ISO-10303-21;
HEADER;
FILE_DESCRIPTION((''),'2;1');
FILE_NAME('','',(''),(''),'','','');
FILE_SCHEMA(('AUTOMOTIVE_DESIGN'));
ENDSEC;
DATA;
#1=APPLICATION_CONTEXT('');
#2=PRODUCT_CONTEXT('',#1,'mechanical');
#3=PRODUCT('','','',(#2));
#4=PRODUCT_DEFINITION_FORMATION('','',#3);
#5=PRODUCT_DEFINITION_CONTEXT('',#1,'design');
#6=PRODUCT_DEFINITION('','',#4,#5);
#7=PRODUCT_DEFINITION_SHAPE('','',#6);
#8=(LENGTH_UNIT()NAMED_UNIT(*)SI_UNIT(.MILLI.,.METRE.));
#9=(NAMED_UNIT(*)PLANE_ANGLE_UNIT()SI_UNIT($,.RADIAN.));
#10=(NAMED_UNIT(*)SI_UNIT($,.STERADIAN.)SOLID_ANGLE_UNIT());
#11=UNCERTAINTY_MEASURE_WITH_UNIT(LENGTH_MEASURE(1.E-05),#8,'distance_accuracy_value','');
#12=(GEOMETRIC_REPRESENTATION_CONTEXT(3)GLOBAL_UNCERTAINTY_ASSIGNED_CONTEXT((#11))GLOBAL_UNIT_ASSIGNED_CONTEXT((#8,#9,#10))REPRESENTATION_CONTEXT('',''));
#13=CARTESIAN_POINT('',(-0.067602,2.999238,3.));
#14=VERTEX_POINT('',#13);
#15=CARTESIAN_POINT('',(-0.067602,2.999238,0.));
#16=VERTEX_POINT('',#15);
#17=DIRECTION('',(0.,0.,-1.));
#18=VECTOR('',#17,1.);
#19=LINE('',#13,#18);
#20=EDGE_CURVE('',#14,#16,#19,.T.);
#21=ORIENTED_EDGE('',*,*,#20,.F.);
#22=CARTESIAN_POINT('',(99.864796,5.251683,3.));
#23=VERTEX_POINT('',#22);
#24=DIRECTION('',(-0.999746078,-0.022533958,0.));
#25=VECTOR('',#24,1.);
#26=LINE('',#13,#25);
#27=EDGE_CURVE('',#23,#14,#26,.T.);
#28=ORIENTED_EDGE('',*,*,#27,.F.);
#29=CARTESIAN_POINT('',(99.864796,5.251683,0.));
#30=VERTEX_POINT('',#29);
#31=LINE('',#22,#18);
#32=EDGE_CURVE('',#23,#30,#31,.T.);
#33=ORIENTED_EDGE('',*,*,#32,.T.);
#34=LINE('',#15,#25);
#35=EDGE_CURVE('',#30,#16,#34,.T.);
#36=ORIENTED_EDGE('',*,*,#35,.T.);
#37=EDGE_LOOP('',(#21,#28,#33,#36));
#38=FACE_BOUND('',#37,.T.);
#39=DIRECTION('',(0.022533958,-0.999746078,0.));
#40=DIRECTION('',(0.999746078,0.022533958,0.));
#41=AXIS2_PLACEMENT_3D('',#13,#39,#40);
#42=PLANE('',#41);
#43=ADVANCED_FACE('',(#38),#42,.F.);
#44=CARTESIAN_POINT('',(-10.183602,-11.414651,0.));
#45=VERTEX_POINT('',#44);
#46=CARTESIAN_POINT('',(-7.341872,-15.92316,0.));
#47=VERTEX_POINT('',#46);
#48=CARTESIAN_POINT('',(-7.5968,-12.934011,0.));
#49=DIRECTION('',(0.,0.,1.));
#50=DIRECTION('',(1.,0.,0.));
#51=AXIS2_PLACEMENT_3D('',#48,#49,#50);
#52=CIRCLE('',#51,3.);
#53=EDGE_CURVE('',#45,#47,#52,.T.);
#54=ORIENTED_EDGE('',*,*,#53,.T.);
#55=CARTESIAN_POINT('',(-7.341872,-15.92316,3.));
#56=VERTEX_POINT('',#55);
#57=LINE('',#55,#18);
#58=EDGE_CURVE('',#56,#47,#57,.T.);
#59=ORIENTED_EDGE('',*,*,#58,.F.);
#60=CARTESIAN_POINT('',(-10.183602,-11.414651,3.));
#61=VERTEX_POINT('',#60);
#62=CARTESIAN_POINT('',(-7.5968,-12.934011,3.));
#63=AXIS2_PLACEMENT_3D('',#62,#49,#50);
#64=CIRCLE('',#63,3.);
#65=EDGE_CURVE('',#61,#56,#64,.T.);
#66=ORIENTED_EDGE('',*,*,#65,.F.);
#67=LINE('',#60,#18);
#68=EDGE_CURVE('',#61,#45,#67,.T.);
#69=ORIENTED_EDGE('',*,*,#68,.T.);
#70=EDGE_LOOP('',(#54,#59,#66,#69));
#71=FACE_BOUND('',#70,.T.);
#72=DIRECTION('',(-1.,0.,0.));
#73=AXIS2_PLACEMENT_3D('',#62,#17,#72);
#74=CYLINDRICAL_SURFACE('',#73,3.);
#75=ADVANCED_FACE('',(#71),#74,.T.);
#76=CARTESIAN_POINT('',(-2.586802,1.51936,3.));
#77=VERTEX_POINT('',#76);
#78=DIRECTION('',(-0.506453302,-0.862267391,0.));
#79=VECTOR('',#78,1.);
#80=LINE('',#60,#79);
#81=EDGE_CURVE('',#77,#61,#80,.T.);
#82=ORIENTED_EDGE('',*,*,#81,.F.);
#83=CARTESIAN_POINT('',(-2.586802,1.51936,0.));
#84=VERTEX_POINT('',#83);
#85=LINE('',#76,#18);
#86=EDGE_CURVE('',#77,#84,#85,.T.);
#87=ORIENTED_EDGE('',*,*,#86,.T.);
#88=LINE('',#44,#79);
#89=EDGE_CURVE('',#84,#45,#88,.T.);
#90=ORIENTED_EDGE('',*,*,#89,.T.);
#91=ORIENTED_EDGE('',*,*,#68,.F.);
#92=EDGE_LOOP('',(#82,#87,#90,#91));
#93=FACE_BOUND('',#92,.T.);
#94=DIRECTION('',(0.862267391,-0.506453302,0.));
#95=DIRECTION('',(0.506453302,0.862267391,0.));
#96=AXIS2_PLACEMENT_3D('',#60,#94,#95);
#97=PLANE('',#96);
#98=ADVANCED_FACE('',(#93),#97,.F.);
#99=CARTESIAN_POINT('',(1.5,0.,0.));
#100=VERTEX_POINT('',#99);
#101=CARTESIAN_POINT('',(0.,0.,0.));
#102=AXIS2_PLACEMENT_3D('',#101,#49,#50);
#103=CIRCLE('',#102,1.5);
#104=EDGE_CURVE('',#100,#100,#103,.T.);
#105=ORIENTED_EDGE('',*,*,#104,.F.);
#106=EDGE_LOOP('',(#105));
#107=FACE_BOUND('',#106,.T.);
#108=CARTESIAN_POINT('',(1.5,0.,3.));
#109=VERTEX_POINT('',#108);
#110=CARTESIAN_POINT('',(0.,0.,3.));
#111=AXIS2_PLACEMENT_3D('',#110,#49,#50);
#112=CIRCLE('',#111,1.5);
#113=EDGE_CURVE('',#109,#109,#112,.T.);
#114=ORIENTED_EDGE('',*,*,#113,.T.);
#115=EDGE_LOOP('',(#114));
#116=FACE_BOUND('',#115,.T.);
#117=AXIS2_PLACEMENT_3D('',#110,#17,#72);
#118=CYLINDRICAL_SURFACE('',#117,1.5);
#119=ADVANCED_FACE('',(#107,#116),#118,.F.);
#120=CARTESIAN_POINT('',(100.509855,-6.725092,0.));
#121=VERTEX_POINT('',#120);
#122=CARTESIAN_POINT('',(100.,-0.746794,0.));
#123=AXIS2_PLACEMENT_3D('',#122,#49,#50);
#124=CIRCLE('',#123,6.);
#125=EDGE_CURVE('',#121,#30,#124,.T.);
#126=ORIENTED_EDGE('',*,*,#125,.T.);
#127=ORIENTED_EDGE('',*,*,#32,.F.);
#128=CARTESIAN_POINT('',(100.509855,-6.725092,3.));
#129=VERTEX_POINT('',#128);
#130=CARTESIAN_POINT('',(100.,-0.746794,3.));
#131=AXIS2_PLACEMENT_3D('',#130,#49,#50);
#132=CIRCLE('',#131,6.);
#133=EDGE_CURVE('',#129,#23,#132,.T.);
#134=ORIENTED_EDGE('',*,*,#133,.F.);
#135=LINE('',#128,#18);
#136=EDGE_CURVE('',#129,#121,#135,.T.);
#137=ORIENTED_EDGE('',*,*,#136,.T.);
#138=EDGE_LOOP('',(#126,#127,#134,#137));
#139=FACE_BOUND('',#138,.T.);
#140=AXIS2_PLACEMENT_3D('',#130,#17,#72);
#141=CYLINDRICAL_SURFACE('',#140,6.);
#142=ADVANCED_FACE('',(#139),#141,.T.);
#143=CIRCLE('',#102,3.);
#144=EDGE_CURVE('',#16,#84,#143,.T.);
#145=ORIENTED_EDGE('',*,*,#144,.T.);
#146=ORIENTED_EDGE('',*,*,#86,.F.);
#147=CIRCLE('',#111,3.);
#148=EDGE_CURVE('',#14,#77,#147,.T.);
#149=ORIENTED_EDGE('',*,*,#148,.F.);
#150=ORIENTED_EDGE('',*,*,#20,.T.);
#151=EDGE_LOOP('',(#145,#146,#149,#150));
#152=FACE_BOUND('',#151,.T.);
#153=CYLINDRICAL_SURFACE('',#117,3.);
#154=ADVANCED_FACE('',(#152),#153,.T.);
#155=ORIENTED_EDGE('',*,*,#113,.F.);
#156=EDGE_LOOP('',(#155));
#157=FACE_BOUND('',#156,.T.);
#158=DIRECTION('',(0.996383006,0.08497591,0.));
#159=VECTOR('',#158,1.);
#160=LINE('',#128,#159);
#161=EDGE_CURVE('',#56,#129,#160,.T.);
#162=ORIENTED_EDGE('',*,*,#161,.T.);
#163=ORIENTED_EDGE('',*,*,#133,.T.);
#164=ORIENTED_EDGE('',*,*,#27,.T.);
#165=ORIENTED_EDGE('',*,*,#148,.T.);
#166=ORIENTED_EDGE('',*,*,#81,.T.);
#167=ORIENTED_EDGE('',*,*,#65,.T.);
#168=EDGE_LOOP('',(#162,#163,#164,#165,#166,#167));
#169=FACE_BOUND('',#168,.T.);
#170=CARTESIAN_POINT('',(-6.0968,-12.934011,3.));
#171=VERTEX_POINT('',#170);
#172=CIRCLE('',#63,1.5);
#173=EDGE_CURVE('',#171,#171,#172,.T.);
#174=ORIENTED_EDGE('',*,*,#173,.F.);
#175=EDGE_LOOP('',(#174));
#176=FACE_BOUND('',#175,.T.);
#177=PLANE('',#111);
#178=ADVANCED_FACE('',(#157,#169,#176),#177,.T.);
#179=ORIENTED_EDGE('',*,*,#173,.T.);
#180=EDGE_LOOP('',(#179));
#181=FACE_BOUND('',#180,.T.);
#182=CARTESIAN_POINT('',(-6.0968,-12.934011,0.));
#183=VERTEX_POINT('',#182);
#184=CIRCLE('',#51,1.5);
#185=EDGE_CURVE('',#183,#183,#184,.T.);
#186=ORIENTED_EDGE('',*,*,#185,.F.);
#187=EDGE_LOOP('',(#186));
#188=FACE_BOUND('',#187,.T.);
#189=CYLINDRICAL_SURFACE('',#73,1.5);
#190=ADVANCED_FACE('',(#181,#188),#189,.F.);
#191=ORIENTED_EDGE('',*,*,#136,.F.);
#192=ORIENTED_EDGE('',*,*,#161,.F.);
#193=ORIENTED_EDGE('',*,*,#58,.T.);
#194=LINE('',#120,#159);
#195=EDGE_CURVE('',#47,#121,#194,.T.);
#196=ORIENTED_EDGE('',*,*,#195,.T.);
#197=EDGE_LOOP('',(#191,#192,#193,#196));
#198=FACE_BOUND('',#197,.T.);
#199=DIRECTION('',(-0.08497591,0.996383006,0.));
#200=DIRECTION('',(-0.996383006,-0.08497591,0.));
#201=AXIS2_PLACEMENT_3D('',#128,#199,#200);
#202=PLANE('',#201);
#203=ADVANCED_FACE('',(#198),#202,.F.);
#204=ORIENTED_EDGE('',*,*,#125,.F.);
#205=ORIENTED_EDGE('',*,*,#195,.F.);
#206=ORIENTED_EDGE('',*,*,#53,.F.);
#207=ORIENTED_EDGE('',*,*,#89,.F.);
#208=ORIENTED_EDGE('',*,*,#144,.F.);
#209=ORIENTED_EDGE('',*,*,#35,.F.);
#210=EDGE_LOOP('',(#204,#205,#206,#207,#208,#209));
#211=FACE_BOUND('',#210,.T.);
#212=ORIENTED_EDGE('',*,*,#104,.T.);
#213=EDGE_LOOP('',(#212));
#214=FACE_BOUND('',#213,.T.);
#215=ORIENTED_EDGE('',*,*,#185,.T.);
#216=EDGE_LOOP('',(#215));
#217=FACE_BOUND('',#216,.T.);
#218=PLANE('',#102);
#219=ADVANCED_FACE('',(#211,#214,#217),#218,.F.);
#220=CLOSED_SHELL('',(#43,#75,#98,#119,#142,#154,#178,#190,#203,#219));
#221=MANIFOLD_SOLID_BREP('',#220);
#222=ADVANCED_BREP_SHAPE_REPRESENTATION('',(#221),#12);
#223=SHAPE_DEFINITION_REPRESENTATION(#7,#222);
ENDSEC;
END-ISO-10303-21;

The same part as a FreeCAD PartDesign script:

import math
import FreeCAD as App
import Part
import Sketcher
from FreeCAD import Vector
Q = App.Units.Quantity

doc = App.newDocument("Part")
params = doc.addObject("Spreadsheet::Sheet", "Params")
for row, (alias, value) in enumerate([
    ("sketch1_diameter", "3 mm"),
    ("sketch1_radius", "3 mm"),
    ("sketch1_radius2", "6 mm"),
    ("sketch1_length", "15 mm"),
    ("pad1_length", "3 mm"),
], start=1):
    params.set(f"A{row}", alias)
    params.set(f"B{row}", "=" + value)
    params.setAlias(f"B{row}", alias)

body = doc.addObject("PartDesign::Body", "Body")

sketch1 = body.newObject("Sketcher::SketchObject", "Sketch")
sketch1.AttachmentSupport = (doc.getObject("XY_Plane"), [""])
sketch1.MapMode = "FlatFace"
sketch1.addGeometry([
    Part.LineSegment(Vector(-2.586802, 1.51936, 0), Vector(-10.183602, -11.414651, 0)),
    Part.ArcOfCircle(Part.Circle(Vector(-7.5968, -12.934011, 0), Vector(0, 0, 1), 3), math.radians(149.572127), math.radians(274.87464)),
    Part.LineSegment(Vector(-7.341872, -15.92316, 0), Vector(100.509855, -6.725092, 0)),
    Part.ArcOfCircle(Part.Circle(Vector(100, -0.746794, 0), Vector(0, 0, 1), 6), math.radians(-85.12536), math.radians(91.29121)),
    Part.LineSegment(Vector(99.864796, 5.251683, 0), Vector(-0.067602, 2.999238, 0)),
    Part.ArcOfCircle(Part.Circle(Vector(0, 0, 0), Vector(0, 0, 1), 3), math.radians(91.29121), math.radians(149.572127)),
    Part.Circle(Vector(-7.5968, -12.934011, 0), Vector(0, 0, 1), 1.5),
    Part.Circle(Vector(0, 0, 0), Vector(0, 0, 1), 1.5),
], False)
sketch1.addConstraint([
    Sketcher.Constraint("Tangent", 0, 2, 1, 1),
    Sketcher.Constraint("Tangent", 1, 2, 2, 1),
    Sketcher.Constraint("Tangent", 2, 2, 3, 1),
    Sketcher.Constraint("Tangent", 3, 2, 4, 1),
    Sketcher.Constraint("Tangent", 4, 2, 5, 1),
    Sketcher.Constraint("Tangent", 5, 2, 0, 1),
    Sketcher.Constraint("Coincident", 5, 3, -1, 1),
    Sketcher.Constraint("Coincident", 7, 3, -1, 1),
    Sketcher.Constraint("Coincident", 6, 3, 1, 3),
    Sketcher.Constraint("Equal", 1, 5),
    Sketcher.Constraint("Equal", 6, 7),
    Sketcher.Constraint("Diameter", 6, Q("3 mm")),
    Sketcher.Constraint("Radius", 1, Q("3 mm")),
    Sketcher.Constraint("Radius", 3, Q("6 mm")),
    Sketcher.Constraint("Distance", 0, Q("15 mm")),
    Sketcher.Constraint("DistanceX", -1, 1, 3, 3, Q("100 mm")),
    Sketcher.Constraint("DistanceX", 0, 2, 4, 2, Q("10.116 mm")),
    Sketcher.Constraint("DistanceX", 1, 3, -1, 1, Q("7.5968 mm")),
])
sketch1.setExpression("Constraints[11]", "Params.sketch1_diameter")
sketch1.setExpression("Constraints[12]", "Params.sketch1_radius")
sketch1.setExpression("Constraints[13]", "Params.sketch1_radius2")
sketch1.setExpression("Constraints[14]", "Params.sketch1_length")
pad1 = body.newObject("PartDesign::Pad", "Pad")
pad1.Profile = sketch1
pad1.setExpression("Length", "Params.pad1_length")

doc.recompute()
